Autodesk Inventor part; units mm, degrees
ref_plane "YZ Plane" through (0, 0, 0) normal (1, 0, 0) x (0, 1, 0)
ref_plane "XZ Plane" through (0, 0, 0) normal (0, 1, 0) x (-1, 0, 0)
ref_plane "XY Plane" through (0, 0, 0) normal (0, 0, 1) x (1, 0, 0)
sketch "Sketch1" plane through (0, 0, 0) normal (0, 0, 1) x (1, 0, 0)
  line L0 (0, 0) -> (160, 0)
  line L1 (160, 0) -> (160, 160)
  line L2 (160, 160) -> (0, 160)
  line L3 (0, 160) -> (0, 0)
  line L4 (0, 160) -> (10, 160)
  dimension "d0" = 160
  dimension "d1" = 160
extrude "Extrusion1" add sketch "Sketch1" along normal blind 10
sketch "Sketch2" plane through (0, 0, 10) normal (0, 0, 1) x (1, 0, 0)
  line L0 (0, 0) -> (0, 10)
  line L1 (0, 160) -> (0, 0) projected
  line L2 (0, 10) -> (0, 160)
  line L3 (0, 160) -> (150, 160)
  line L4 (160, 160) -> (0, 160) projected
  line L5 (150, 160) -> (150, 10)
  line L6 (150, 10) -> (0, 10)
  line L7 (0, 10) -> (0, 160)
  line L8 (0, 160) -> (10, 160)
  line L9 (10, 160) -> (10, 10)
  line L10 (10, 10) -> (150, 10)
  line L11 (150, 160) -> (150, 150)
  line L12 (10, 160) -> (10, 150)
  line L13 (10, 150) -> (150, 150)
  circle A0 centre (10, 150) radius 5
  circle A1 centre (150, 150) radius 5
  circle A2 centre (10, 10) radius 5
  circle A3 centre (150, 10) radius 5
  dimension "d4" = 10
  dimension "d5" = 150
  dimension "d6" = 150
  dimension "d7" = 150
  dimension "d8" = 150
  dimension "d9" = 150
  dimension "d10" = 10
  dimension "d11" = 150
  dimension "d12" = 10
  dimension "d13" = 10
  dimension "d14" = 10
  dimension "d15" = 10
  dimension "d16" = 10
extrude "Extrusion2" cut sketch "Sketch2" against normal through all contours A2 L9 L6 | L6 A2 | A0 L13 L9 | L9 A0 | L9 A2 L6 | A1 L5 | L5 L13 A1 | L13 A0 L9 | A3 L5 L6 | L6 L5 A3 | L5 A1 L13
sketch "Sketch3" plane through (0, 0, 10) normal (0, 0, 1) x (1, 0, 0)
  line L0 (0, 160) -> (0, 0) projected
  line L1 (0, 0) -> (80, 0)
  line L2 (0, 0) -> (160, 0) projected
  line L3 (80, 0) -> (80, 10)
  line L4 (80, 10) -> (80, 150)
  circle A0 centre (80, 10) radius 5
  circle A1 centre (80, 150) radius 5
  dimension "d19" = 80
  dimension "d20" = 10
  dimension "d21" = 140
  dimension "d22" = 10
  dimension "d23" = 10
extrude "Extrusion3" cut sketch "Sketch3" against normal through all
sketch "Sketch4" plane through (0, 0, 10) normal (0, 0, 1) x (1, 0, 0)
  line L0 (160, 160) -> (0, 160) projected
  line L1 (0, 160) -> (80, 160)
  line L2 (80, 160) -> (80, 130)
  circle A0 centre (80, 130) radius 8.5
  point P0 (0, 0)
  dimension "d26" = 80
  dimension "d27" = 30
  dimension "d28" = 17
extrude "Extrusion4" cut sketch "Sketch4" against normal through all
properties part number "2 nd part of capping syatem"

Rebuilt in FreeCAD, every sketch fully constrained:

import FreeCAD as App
import Part
import Sketcher

V = App.Vector


def add_polygon(sketch, points):
    """Adds a closed chain of lines whose ends are joined by coincident constraints."""
    first, n = sketch.GeometryCount, len(points)
    for a, b in zip(points, points[1:] + points[:1]):
        sketch.addGeometry(Part.LineSegment(App.Vector(*a, 0), App.Vector(*b, 0)), False)
    for i in range(n):
        sketch.addConstraint(Sketcher.Constraint("Coincident", first + i, 2, first + (i + 1) % n, 1))

doc = App.newDocument("Part")
body = doc.addObject("PartDesign::Body", "Body")

# Sketch on XY plane
sketch1 = body.newObject("Sketcher::SketchObject", "Sketch")
sketch1.AttachmentSupport = (doc.getObject("XY_Plane"), [""])
sketch1.MapMode = "FlatFace"
add_polygon(sketch1, [(0, 160), (0, 0), (160, 0), (160, 160)])  # lines 0-3
sketch1.addConstraint([
    Sketcher.Constraint("Vertical", 0),
    Sketcher.Constraint("Horizontal", 1),
    Sketcher.Constraint("Vertical", 2),
    Sketcher.Constraint("Horizontal", 3),
    Sketcher.Constraint("Coincident", 0, 2, -1, 1),
    Sketcher.Constraint("Equal", 3, 0),
    Sketcher.Constraint("DistanceX", 1, 1, 1, 2, 160.0),
])
pad1 = body.newObject("PartDesign::Pad", "Pad")
pad1.Profile = sketch1
pad1.Length = 10

# Sketch on XY plane
sketch2 = body.newObject("Sketcher::SketchObject", "Sketch001")
sketch2.AttachmentSupport = (doc.getObject("XY_Plane"), [""])
sketch2.MapMode = "FlatFace"
sketch2.AttachmentOffset = App.Placement(V(0, 0, 10), App.Rotation())
sketch2.addGeometry([
    Part.Circle(V(10, 10, 0), V(0, 0, 1), 5),
    Part.Circle(V(10, 150, 0), V(0, 0, 1), 5),
    Part.Circle(V(150, 150, 0), V(0, 0, 1), 5),
    Part.Circle(V(150, 10, 0), V(0, 0, 1), 5),
], False)
sketch2.addConstraint([
    Sketcher.Constraint("Equal", 0, 1),
    Sketcher.Constraint("Equal", 1, 2),
    Sketcher.Constraint("Equal", 2, 3),
    Sketcher.Constraint("Horizontal", 1, 3, 2, 3),
    Sketcher.Constraint("Horizontal", 0, 3, 3, 3),
    Sketcher.Constraint("Vertical", 0, 3, 1, 3),
    Sketcher.Constraint("Vertical", 2, 3, 3, 3),
    Sketcher.Constraint("Diameter", 0, 10.0),
    Sketcher.Constraint("DistanceX", -1, 1, 0, 3, 10.0),
    Sketcher.Constraint("DistanceY", -1, 1, 0, 3, 10.0),
    Sketcher.Constraint("DistanceY", -1, 1, 1, 3, 150.0),
    Sketcher.Constraint("DistanceX", -1, 1, 2, 3, 150.0),
])
pocket1 = body.newObject("PartDesign::Pocket", "Pocket")
pocket1.Profile = sketch2
pocket1.Type = "ThroughAll"

# Sketch on XY plane
sketch3 = body.newObject("Sketcher::SketchObject", "Sketch002")
sketch3.AttachmentSupport = (doc.getObject("XY_Plane"), [""])
sketch3.MapMode = "FlatFace"
sketch3.AttachmentOffset = App.Placement(V(0, 0, 10), App.Rotation())
sketch3.addGeometry([
    Part.Circle(V(80, 10, 0), V(0, 0, 1), 5),
    Part.Circle(V(80, 150, 0), V(0, 0, 1), 5),
], False)
sketch3.addConstraint([
    Sketcher.Constraint("Equal", 0, 1),
    Sketcher.Constraint("Vertical", 0, 3, 1, 3),
    Sketcher.Constraint("Diameter", 0, 10.0),
    Sketcher.Constraint("DistanceX", -1, 1, 0, 3, 80.0),
    Sketcher.Constraint("DistanceY", -1, 1, 0, 3, 10.0),
    Sketcher.Constraint("DistanceY", 0, 3, 1, 3, 140.0),
])
pocket2 = body.newObject("PartDesign::Pocket", "Pocket001")
pocket2.Profile = sketch3
pocket2.Type = "ThroughAll"

# Sketch on XY plane
sketch4 = body.newObject("Sketcher::SketchObject", "Sketch003")
sketch4.AttachmentSupport = (doc.getObject("XY_Plane"), [""])
sketch4.MapMode = "FlatFace"
sketch4.AttachmentOffset = App.Placement(V(0, 0, 10), App.Rotation())
sketch4.addGeometry(Part.Circle(V(80, 130, 0), V(0, 0, 1), 8.5), False)
sketch4.addConstraint([
    Sketcher.Constraint("Diameter", 0, 17.0),
    Sketcher.Constraint("DistanceX", -1, 1, 0, 3, 80.0),
    Sketcher.Constraint("DistanceY", -1, 1, 0, 3, 130.0),
])
pocket3 = body.newObject("PartDesign::Pocket", "Pocket002")
pocket3.Profile = sketch4
pocket3.Type = "ThroughAll"

doc.recompute()
